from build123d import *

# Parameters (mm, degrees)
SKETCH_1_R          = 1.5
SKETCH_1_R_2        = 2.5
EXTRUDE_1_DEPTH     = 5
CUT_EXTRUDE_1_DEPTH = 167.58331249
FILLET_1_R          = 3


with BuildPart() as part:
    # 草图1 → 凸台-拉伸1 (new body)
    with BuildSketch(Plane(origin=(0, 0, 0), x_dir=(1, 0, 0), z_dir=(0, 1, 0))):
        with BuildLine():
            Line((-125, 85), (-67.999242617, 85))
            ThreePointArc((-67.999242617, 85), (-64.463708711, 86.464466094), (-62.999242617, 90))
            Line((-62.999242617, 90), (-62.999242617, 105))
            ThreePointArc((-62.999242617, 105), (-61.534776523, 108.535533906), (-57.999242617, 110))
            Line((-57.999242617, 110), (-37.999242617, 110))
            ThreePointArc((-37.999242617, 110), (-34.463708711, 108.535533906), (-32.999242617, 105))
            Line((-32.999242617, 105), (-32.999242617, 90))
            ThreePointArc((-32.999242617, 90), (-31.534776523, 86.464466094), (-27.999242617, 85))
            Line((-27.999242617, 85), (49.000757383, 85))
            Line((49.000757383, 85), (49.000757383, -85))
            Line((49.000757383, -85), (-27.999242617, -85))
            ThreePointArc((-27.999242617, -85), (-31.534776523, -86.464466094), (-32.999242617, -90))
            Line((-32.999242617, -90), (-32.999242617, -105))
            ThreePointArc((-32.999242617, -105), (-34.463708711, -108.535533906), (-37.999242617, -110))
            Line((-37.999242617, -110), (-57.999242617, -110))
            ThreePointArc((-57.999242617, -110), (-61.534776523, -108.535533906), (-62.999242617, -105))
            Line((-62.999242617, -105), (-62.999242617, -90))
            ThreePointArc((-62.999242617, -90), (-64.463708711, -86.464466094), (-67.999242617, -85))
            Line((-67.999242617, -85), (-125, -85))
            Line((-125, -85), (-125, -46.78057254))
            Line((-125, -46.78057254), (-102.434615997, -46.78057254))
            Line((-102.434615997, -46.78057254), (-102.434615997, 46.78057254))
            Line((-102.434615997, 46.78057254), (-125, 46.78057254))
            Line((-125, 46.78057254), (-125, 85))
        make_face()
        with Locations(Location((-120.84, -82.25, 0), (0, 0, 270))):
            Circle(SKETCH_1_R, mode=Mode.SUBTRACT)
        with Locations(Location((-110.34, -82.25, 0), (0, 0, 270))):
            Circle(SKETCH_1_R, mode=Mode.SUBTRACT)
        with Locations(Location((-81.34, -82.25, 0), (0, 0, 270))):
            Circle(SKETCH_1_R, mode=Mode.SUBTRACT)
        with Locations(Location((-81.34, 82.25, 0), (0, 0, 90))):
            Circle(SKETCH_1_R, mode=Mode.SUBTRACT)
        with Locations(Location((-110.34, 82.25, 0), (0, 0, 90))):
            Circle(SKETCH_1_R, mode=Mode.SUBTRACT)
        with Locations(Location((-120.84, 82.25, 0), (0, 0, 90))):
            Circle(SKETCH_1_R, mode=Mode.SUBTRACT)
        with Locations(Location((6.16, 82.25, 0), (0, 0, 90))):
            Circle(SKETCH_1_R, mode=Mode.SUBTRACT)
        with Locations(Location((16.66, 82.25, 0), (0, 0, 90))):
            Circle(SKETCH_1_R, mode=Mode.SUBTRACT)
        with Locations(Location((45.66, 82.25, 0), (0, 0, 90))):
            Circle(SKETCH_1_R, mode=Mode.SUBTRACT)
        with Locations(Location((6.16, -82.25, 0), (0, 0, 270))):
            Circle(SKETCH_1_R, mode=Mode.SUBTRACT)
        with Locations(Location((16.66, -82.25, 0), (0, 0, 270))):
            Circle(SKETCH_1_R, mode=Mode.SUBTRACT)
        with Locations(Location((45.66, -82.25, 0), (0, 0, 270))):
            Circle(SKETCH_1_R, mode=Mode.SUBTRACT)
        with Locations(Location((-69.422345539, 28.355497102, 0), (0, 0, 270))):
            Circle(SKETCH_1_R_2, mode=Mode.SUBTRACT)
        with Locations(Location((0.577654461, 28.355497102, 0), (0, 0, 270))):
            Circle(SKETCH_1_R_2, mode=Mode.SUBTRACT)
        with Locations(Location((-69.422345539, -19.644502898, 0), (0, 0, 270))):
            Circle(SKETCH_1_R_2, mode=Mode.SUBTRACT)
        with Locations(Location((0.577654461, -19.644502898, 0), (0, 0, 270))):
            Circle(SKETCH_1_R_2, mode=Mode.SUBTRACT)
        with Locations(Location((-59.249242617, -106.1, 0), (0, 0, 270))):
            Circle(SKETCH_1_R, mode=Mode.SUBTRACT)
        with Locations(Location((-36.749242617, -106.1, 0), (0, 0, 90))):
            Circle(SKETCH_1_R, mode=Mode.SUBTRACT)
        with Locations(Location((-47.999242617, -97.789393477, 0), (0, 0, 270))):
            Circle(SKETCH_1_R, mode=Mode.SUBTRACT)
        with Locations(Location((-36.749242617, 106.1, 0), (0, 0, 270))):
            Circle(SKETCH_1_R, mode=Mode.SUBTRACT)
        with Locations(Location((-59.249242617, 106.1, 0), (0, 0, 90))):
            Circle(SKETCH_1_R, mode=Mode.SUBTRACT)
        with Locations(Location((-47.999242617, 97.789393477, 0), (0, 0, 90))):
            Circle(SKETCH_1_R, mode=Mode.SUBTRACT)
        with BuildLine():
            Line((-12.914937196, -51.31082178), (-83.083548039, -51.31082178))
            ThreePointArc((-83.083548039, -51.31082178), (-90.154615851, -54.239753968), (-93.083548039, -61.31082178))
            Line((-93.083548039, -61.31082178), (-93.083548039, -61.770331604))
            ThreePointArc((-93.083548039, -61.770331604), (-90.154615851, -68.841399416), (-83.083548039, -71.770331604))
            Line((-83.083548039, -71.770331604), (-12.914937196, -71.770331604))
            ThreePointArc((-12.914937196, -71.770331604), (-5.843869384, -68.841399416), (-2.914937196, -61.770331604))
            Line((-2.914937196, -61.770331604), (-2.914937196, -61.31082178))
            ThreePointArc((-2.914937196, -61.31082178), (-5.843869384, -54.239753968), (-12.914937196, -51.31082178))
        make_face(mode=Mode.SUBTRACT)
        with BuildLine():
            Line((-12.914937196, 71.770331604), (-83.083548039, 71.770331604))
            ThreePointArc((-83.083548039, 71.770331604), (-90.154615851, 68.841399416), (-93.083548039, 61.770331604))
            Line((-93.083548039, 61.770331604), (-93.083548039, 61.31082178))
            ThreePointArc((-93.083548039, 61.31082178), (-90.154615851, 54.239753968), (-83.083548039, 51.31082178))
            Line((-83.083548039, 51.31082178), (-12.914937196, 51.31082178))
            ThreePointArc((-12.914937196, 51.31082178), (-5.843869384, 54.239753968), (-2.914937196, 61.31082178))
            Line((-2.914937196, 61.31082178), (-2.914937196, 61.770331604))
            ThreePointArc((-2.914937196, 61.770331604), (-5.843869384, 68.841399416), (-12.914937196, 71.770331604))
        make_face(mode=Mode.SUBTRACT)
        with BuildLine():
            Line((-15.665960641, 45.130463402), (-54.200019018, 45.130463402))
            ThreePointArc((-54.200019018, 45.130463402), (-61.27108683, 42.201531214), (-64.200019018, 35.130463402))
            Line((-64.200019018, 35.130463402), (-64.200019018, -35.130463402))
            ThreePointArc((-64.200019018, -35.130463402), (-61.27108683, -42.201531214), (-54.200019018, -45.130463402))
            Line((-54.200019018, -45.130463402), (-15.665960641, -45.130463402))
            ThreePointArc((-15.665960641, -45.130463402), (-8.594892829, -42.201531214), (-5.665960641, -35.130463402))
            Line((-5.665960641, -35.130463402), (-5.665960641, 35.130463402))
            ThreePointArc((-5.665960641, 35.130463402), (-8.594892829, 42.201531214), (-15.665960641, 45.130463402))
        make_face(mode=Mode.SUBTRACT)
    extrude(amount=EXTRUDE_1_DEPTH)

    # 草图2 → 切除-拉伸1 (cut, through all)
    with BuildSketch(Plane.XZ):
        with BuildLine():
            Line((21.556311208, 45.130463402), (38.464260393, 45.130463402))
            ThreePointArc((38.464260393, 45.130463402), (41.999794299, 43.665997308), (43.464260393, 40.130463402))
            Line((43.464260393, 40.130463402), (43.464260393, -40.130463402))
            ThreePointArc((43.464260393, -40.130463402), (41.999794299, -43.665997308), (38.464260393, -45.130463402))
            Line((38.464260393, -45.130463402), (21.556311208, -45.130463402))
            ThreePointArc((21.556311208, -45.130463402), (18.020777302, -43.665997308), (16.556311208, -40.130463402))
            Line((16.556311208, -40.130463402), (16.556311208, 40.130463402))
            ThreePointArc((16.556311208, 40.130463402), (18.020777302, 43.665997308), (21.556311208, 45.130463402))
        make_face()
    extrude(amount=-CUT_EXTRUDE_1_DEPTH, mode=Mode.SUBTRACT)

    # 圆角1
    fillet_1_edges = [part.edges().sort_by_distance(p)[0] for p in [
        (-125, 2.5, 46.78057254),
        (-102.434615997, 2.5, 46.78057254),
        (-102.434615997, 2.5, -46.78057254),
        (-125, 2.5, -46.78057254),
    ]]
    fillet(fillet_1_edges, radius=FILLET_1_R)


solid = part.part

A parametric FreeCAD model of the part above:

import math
import FreeCAD as App
import Part
import Sketcher

V = App.Vector
Q = App.Units.Quantity


def edges_at(feature, points):
    """Names of the edges that pass closest to the given points."""
    edges = feature.Shape.Edges
    near = lambda p: min(range(len(edges)), key=lambda i: edges[i].distToShape(Part.Vertex(*p))[0])
    return sorted({f"Edge{near(p) + 1}" for p in points})

doc = App.newDocument("Part")
body = doc.addObject("PartDesign::Body", "Body")

# Sketch on XZ plane
sketch1 = body.newObject("Sketcher::SketchObject", "Sketch")
sketch1.AttachmentSupport = (doc.getObject("XZ_Plane"), [""])
sketch1.MapMode = "FlatFace"
sketch1.addGeometry([
    Part.LineSegment(V(-68, -85, 0), V(-125, -85, 0)),  # 0
    Part.LineSegment(V(-125, -85, 0), V(-125, -46.78, 0)),  # 1
    Part.LineSegment(V(-125, -46.78, 0), V(-102.43, -46.78, 0)),  # 2
    Part.LineSegment(V(-102.43, -46.78, 0), V(-102.43, 46.78, 0)),  # 3
    Part.LineSegment(V(-102.43, 46.78, 0), V(-125, 46.78, 0)),  # 4
    Part.LineSegment(V(-125, 46.78, 0), V(-125, 85, 0)),  # 5
    Part.LineSegment(V(-125, 85, 0), V(-68, 85, 0)),  # 6
    Part.ArcOfCircle(Part.Circle(V(-68, 90, 0), V(0, 0, 1), 5), math.radians(-90), math.radians(0)),  # 7
    Part.LineSegment(V(-63, 90, 0), V(-63, 105, 0)),  # 8
    Part.ArcOfCircle(Part.Circle(V(-58, 105, 0), V(0, 0, 1), 5), math.radians(90), math.radians(180)),  # 9
    Part.LineSegment(V(-58, 110, 0), V(-38, 110, 0)),  # 10
    Part.ArcOfCircle(Part.Circle(V(-38, 105, 0), V(0, 0, 1), 5), math.radians(0), math.radians(90)),  # 11
    Part.LineSegment(V(-33, 105, 0), V(-33, 90, 0)),  # 12
    Part.ArcOfCircle(Part.Circle(V(-28, 90, 0), V(0, 0, 1), 5), math.radians(180), math.radians(270)),  # 13
    Part.LineSegment(V(-28, 85, 0), V(49, 85, 0)),  # 14
    Part.LineSegment(V(49, 85, 0), V(49, -85, 0)),  # 15
    Part.LineSegment(V(49, -85, 0), V(-28, -85, 0)),  # 16
    Part.ArcOfCircle(Part.Circle(V(-28, -90, 0), V(0, 0, 1), 5), math.radians(90), math.radians(180)),  # 17
    Part.LineSegment(V(-33, -90, 0), V(-33, -105, 0)),  # 18
    Part.ArcOfCircle(Part.Circle(V(-38, -105, 0), V(0, 0, 1), 5), math.radians(-90), math.radians(0)),  # 19
    Part.LineSegment(V(-38, -110, 0), V(-58, -110, 0)),  # 20
    Part.ArcOfCircle(Part.Circle(V(-58, -105, 0), V(0, 0, 1), 5), math.radians(180), math.radians(270)),  # 21
    Part.LineSegment(V(-63, -105, 0), V(-63, -90, 0)),  # 22
    Part.ArcOfCircle(Part.Circle(V(-68, -90, 0), V(0, 0, 1), 5), math.radians(0), math.radians(90)),  # 23
    Part.Circle(V(45.66, 82.25, 0), V(0, 0, 1), 1.5),  # 24
    Part.Circle(V(16.66, 82.25, 0), V(0, 0, 1), 1.5),  # 25
    Part.Circle(V(6.16, 82.25, 0), V(0, 0, 1), 1.5),  # 26
    Part.Circle(V(-36.75, 106.1, 0), V(0, 0, 1), 1.5),  # 27
    Part.Circle(V(0.58, 19.64, 0), V(0, 0, 1), 2.5),  # 28
    Part.Circle(V(-48, 97.79, 0), V(0, 0, 1), 1.5),  # 29
    Part.Circle(V(-59.25, 106.1, 0), V(0, 0, 1), 1.5),  # 30
    Part.ArcOfCircle(Part.Circle(V(-12.91, 61.31, 0), V(0, 0, 1), 10), math.radians(-90), math.radians(0)),  # 31
    Part.LineSegment(V(-2.91, 61.31, 0), V(-2.91, 61.77, 0)),  # 32
    Part.ArcOfCircle(Part.Circle(V(-12.91, 61.77, 0), V(0, 0, 1), 10), math.radians(0), math.radians(90)),  # 33
    Part.LineSegment(V(-12.91, 71.77, 0), V(-83.08, 71.77, 0)),  # 34
    Part.ArcOfCircle(Part.Circle(V(-83.08, 61.77, 0), V(0, 0, 1), 10), math.radians(90), math.radians(180)),  # 35
    Part.LineSegment(V(-93.08, 61.77, 0), V(-93.08, 61.31, 0)),  # 36
    Part.ArcOfCircle(Part.Circle(V(-83.08, 61.31, 0), V(0, 0, 1), 10), math.radians(180), math.radians(270)),  # 37
    Part.LineSegment(V(-83.08, 51.31, 0), V(-12.91, 51.31, 0)),  # 38
    Part.Circle(V(-81.34, 82.25, 0), V(0, 0, 1), 1.5),  # 39
    Part.Circle(V(-110.34, 82.25, 0), V(0, 0, 1), 1.5),  # 40
    Part.Circle(V(-120.84, 82.25, 0), V(0, 0, 1), 1.5),  # 41
    Part.Circle(V(-69.42, 19.64, 0), V(0, 0, 1), 2.5),  # 42
    Part.ArcOfCircle(Part.Circle(V(-15.67, -35.13, 0), V(0, 0, 1), 10), math.radians(-90), math.radians(0)),  # 43
    Part.LineSegment(V(-5.67, -35.13, 0), V(-5.67, 35.13, 0)),  # 44
    Part.ArcOfCircle(Part.Circle(V(-15.67, 35.13, 0), V(0, 0, 1), 10), math.radians(0), math.radians(90)),  # 45
    Part.LineSegment(V(-15.67, 45.13, 0), V(-54.2, 45.13, 0)),  # 46
    Part.ArcOfCircle(Part.Circle(V(-54.2, 35.13, 0), V(0, 0, 1), 10), math.radians(90), math.radians(180)),  # 47
    Part.LineSegment(V(-64.2, 35.13, 0), V(-64.2, -35.13, 0)),  # 48
    Part.ArcOfCircle(Part.Circle(V(-54.2, -35.13, 0), V(0, 0, 1), 10), math.radians(180), math.radians(270)),  # 49
    Part.LineSegment(V(-54.2, -45.13, 0), V(-15.67, -45.13, 0)),  # 50
    Part.Circle(V(0.58, -28.36, 0), V(0, 0, 1), 2.5),  # 51
    Part.Circle(V(45.66, -82.25, 0), V(0, 0, 1), 1.5),  # 52
    Part.Circle(V(16.66, -82.25, 0), V(0, 0, 1), 1.5),  # 53
    Part.Circle(V(6.16, -82.25, 0), V(0, 0, 1), 1.5),  # 54
    Part.Circle(V(-36.75, -106.1, 0), V(0, 0, 1), 1.5),  # 55
    Part.Circle(V(-69.42, -28.36, 0), V(0, 0, 1), 2.5),  # 56
    Part.ArcOfCircle(Part.Circle(V(-12.91, -61.77, 0), V(0, 0, 1), 10), math.radians(-90), math.radians(0)),  # 57
    Part.LineSegment(V(-2.91, -61.77, 0), V(-2.91, -61.31, 0)),  # 58
    Part.ArcOfCircle(Part.Circle(V(-12.91, -61.31, 0), V(0, 0, 1), 10), math.radians(0), math.radians(90)),  # 59
    Part.LineSegment(V(-12.91, -51.31, 0), V(-83.08, -51.31, 0)),  # 60
    Part.ArcOfCircle(Part.Circle(V(-83.08, -61.31, 0), V(0, 0, 1), 10), math.radians(90), math.radians(180)),  # 61
    Part.LineSegment(V(-93.08, -61.31, 0), V(-93.08, -61.77, 0)),  # 62
    Part.ArcOfCircle(Part.Circle(V(-83.08, -61.77, 0), V(0, 0, 1), 10), math.radians(180), math.radians(270)),  # 63
    Part.LineSegment(V(-83.08, -71.77, 0), V(-12.91, -71.77, 0)),  # 64
    Part.Circle(V(-48, -97.79, 0), V(0, 0, 1), 1.5),  # 65
    Part.Circle(V(-59.25, -106.1, 0), V(0, 0, 1), 1.5),  # 66
    Part.Circle(V(-81.34, -82.25, 0), V(0, 0, 1), 1.5),  # 67
    Part.Circle(V(-110.34, -82.25, 0), V(0, 0, 1), 1.5),  # 68
    Part.Circle(V(-120.84, -82.25, 0), V(0, 0, 1), 1.5),  # 69
], False)
sketch1.addConstraint([
    Sketcher.Constraint("Coincident", 0, 2, 1, 1),
    Sketcher.Constraint("Coincident", 1, 2, 2, 1),
    Sketcher.Constraint("Coincident", 2, 2, 3, 1),
    Sketcher.Constraint("Coincident", 3, 2, 4, 1),
    Sketcher.Constraint("Coincident", 4, 2, 5, 1),
    Sketcher.Constraint("Coincident", 5, 2, 6, 1),
    Sketcher.Constraint("Tangent", 6, 2, 7, 1),
    Sketcher.Constraint("Tangent", 7, 2, 8, 1),
    Sketcher.Constraint("Tangent", 8, 2, 9, 2),
    Sketcher.Constraint("Tangent", 9, 1, 10, 1),
    Sketcher.Constraint("Tangent", 10, 2, 11, 2),
    Sketcher.Constraint("Tangent", 11, 1, 12, 1),
    Sketcher.Constraint("Tangent", 12, 2, 13, 1),
    Sketcher.Constraint("Tangent", 13, 2, 14, 1),
    Sketcher.Constraint("Coincident", 14, 2, 15, 1),
    Sketcher.Constraint("Coincident", 15, 2, 16, 1),
    Sketcher.Constraint("Tangent", 16, 2, 17, 1),
    Sketcher.Constraint("Tangent", 17, 2, 18, 1),
    Sketcher.Constraint("Tangent", 18, 2, 19, 2),
    Sketcher.Constraint("Tangent", 19, 1, 20, 1),
    Sketcher.Constraint("Tangent", 20, 2, 21, 2),
    Sketcher.Constraint("Tangent", 21, 1, 22, 1),
    Sketcher.Constraint("Tangent", 22, 2, 23, 1),
    Sketcher.Constraint("Tangent", 23, 2, 0, 1),
    Sketcher.Constraint("Tangent", 31, 2, 32, 1),
    Sketcher.Constraint("Tangent", 32, 2, 33, 1),
    Sketcher.Constraint("Tangent", 33, 2, 34, 1),
    Sketcher.Constraint("Tangent", 34, 2, 35, 1),
    Sketcher.Constraint("Tangent", 35, 2, 36, 1),
    Sketcher.Constraint("Tangent", 36, 2, 37, 1),
    Sketcher.Constraint("Tangent", 37, 2, 38, 1),
    Sketcher.Constraint("Tangent", 38, 2, 31, 1),
    Sketcher.Constraint("Tangent", 43, 2, 44, 1),
    Sketcher.Constraint("Tangent", 44, 2, 45, 1),
    Sketcher.Constraint("Tangent", 45, 2, 46, 1),
    Sketcher.Constraint("Tangent", 46, 2, 47, 1),
    Sketcher.Constraint("Tangent", 47, 2, 48, 1),
    Sketcher.Constraint("Tangent", 48, 2, 49, 1),
    Sketcher.Constraint("Tangent", 49, 2, 50, 1),
    Sketcher.Constraint("Tangent", 50, 2, 43, 1),
    Sketcher.Constraint("Tangent", 57, 2, 58, 1),
    Sketcher.Constraint("Tangent", 58, 2, 59, 1),
    Sketcher.Constraint("Tangent", 59, 2, 60, 1),
    Sketcher.Constraint("Tangent", 60, 2, 61, 1),
    Sketcher.Constraint("Tangent", 61, 2, 62, 1),
    Sketcher.Constraint("Tangent", 62, 2, 63, 1),
    Sketcher.Constraint("Tangent", 63, 2, 64, 1),
    Sketcher.Constraint("Tangent", 64, 2, 57, 1),
    Sketcher.Constraint("Horizontal", 0),
    Sketcher.Constraint("Vertical", 1),
    Sketcher.Constraint("Horizontal", 2),
    Sketcher.Constraint("Vertical", 3),
    Sketcher.Constraint("Horizontal", 4),
    Sketcher.Constraint("Vertical", 5),
    Sketcher.Constraint("Horizontal", 6),
    Sketcher.Constraint("Vertical", 8),
    Sketcher.Constraint("Horizontal", 10),
    Sketcher.Constraint("Vertical", 12),
    Sketcher.Constraint("Horizontal", 14),
    Sketcher.Constraint("Vertical", 15),
    Sketcher.Constraint("Horizontal", 16),
    Sketcher.Constraint("Vertical", 18),
    Sketcher.Constraint("Horizontal", 20),
    Sketcher.Constraint("Vertical", 22),
    Sketcher.Constraint("Vertical", 32),
    Sketcher.Constraint("Horizontal", 34),
    Sketcher.Constraint("Vertical", 36),
    Sketcher.Constraint("Horizontal", 38),
    Sketcher.Constraint("Vertical", 44),
    Sketcher.Constraint("Horizontal", 46),
    Sketcher.Constraint("Vertical", 48),
    Sketcher.Constraint("Horizontal", 50),
    Sketcher.Constraint("Vertical", 58),
    Sketcher.Constraint("Horizontal", 60),
    Sketcher.Constraint("Vertical", 62),
    Sketcher.Constraint("Horizontal", 64),
    Sketcher.Constraint("Equal", 7, 9),
    Sketcher.Constraint("Equal", 9, 11),
    Sketcher.Constraint("Equal", 11, 13),
    Sketcher.Constraint("Equal", 13, 17),
    Sketcher.Constraint("Equal", 17, 19),
    Sketcher.Constraint("Equal", 19, 21),
    Sketcher.Constraint("Equal", 21, 23),
    Sketcher.Constraint("Equal", 24, 25),
    Sketcher.Constraint("Equal", 25, 26),
    Sketcher.Constraint("Equal", 26, 27),
    Sketcher.Constraint("Equal", 27, 29),
    Sketcher.Constraint("Equal", 29, 30),
    Sketcher.Constraint("Equal", 31, 33),
    Sketcher.Constraint("Equal", 33, 35),
    Sketcher.Constraint("Equal", 35, 37),
    Sketcher.Constraint("Equal", 30, 39),
    Sketcher.Constraint("Equal", 39, 40),
    Sketcher.Constraint("Equal", 40, 41),
    Sketcher.Constraint("Equal", 28, 42),
    Sketcher.Constraint("Equal", 37, 43),
    Sketcher.Constraint("Equal", 43, 45),
    Sketcher.Constraint("Equal", 45, 47),
    Sketcher.Constraint("Equal", 47, 49),
    Sketcher.Constraint("Equal", 42, 51),
    Sketcher.Constraint("Equal", 41, 52),
    Sketcher.Constraint("Equal", 52, 53),
    Sketcher.Constraint("Equal", 53, 54),
    Sketcher.Constraint("Equal", 54, 55),
    Sketcher.Constraint("Equal", 51, 56),
    Sketcher.Constraint("Equal", 49, 57),
    Sketcher.Constraint("Equal", 57, 59),
    Sketcher.Constraint("Equal", 59, 61),
    Sketcher.Constraint("Equal", 61, 63),
    Sketcher.Constraint("Equal", 55, 65),
    Sketcher.Constraint("Equal", 65, 66),
    Sketcher.Constraint("Equal", 66, 67),
    Sketcher.Constraint("Equal", 67, 68),
    Sketcher.Constraint("Equal", 68, 69),
    Sketcher.Constraint("Symmetric", 13, 3, 17, 3, -1),
    Sketcher.Constraint("Symmetric", 9, 3, 21, 3, -1),
    Sketcher.Constraint("Symmetric", 24, 3, 52, 3, -1),
    Sketcher.Constraint("Symmetric", 25, 3, 53, 3, -1),
    Sketcher.Constraint("Symmetric", 26, 3, 54, 3, -1),
    Sketcher.Constraint("Symmetric", 27, 3, 55, 3, -1),
    Sketcher.Constraint("Symmetric", 33, 3, 57, 3, -1),
    Sketcher.Constraint("Symmetric", 37, 3, 61, 3, -1),
    Sketcher.Constraint("Symmetric", 29, 3, 65, 3, -1),
    Sketcher.Constraint("Symmetric", 30, 3, 66, 3, -1),
    Sketcher.Constraint("Symmetric", 39, 3, 67, 3, -1),
    Sketcher.Constraint("Symmetric", 40, 3, 68, 3, -1),
    Sketcher.Constraint("Symmetric", 41, 3, 69, 3, -1),
    Sketcher.Constraint("Symmetric", 1, 2, 4, 2, -1),
    Sketcher.Constraint("Horizontal", 7, 3, 13, 3),
    Sketcher.Constraint("Horizontal", 17, 3, 23, 3),
    Sketcher.Constraint("Horizontal", 24, 3, 25, 3),
    Sketcher.Constraint("Horizontal", 25, 3, 26, 3),
    Sketcher.Constraint("Horizontal", 27, 3, 30, 3),
    Sketcher.Constraint("Horizontal", 26, 3, 39, 3),
    Sketcher.Constraint("Horizontal", 39, 3, 40, 3),
    Sketcher.Constraint("Horizontal", 40, 3, 41, 3),
    Sketcher.Constraint("Horizontal", 28, 3, 42, 3),
    Sketcher.Constraint("Horizontal", 51, 3, 56, 3),
    Sketcher.Constraint("Vertical", 28, 3, 51, 3),
    Sketcher.Constraint("Vertical", 42, 3, 56, 3),
    Sketcher.Constraint("Diameter", 24, Q("3 mm")),
    Sketcher.Constraint("Diameter", 28, Q("5 mm")),
    Sketcher.Constraint("Radius", 7, Q("5 mm")),
    Sketcher.Constraint("Radius", 31, Q("10 mm")),
    Sketcher.Constraint("DistanceX", 10, 1, 10, 2, Q("20 mm")),
    Sketcher.Constraint("DistanceX", 14, 1, 14, 2, Q("77 mm")),
    Sketcher.Constraint("DistanceY", 8, 1, 8, 2, Q("15 mm")),
    Sketcher.Constraint("DistanceY", 15, 2, 15, 1, Q("170 mm")),
    Sketcher.Constraint("DistanceX", 0, 2, -1, 1, Q("125 mm")),
    Sketcher.Constraint("DistanceY", -1, 1, 27, 3, Q("106.1 mm")),
    Sketcher.Constraint("DistanceX", -1, 1, 24, 3, Q("45.66 mm")),
    Sketcher.Constraint("DistanceY", -1, 1, 24, 3, Q("82.25 mm")),
    Sketcher.Constraint("DistanceX", -1, 1, 25, 3, Q("16.66 mm")),
    Sketcher.Constraint("DistanceX", -1, 1, 26, 3, Q("6.16 mm")),
    Sketcher.Constraint("DistanceX", 39, 3, -1, 1, Q("81.34 mm")),
    Sketcher.Constraint("DistanceX", 40, 3, -1, 1, Q("110.34 mm")),
    Sketcher.Constraint("DistanceX", 41, 3, -1, 1, Q("120.84 mm")),
    Sketcher.Constraint("DistanceX", 34, 2, 34, 1, Q("70.168611 mm")),
    Sketcher.Constraint("DistanceX", 46, 2, 46, 1, Q("38.534058 mm")),
    Sketcher.Constraint("DistanceY", 32, 1, 32, 2, Q("0.45951 mm")),
    Sketcher.Constraint("DistanceX", 0, 2, 0, 1, Q("57.000757 mm")),
    Sketcher.Constraint("DistanceX", 2, 1, 2, 2, Q("22.565384 mm")),
    Sketcher.Constraint("DistanceY", 1, 1, 1, 2, Q("38.219427 mm")),
    Sketcher.Constraint("DistanceY", 44, 1, 44, 2, Q("70.260927 mm")),
    Sketcher.Constraint("DistanceY", -1, 1, 31, 3, Q("61.310822 mm")),
    Sketcher.Constraint("DistanceX", 35, 3, -1, 1, Q("83.083548 mm")),
    Sketcher.Constraint("DistanceX", 43, 3, -1, 1, Q("15.665961 mm")),
    Sketcher.Constraint("DistanceX", 27, 3, -1, 1, Q("36.749243 mm")),
    Sketcher.Constraint("DistanceX", -1, 1, 28, 3, Q("0.577654 mm")),
    Sketcher.Constraint("DistanceY", -1, 1, 28, 3, Q("19.644503 mm")),
    Sketcher.Constraint("DistanceX", 29, 3, -1, 1, Q("47.999243 mm")),
    Sketcher.Constraint("DistanceY", -1, 1, 29, 3, Q("97.789393 mm")),
    Sketcher.Constraint("DistanceX", 30, 3, -1, 1, Q("59.249243 mm")),
    Sketcher.Constraint("DistanceX", 42, 3, -1, 1, Q("69.422346 mm")),
    Sketcher.Constraint("DistanceY", 43, 3, -1, 1, Q("35.130463 mm")),
    Sketcher.Constraint("DistanceY", 51, 3, -1, 1, Q("28.355497 mm")),
])
pad1 = body.newObject("PartDesign::Pad", "Pad")
pad1.Profile = sketch1
pad1.Length = 5
pad1.Reversed = True

# Sketch on XZ plane
sketch2 = body.newObject("Sketcher::SketchObject", "Sketch001")
sketch2.AttachmentSupport = (doc.getObject("XZ_Plane"), [""])
sketch2.MapMode = "FlatFace"
sketch2.addGeometry([
    Part.LineSegment(V(38, 45, 0), V(22, 45, 0)),  # 0
    Part.ArcOfCircle(Part.Circle(V(22, 40, 0), V(0, 0, 1), 5), math.radians(90), math.radians(180)),  # 1
    Part.LineSegment(V(17, 40, 0), V(17, -40, 0)),  # 2
    Part.ArcOfCircle(Part.Circle(V(22, -40, 0), V(0, 0, 1), 5), math.radians(180), math.radians(270)),  # 3
    Part.LineSegment(V(22, -45, 0), V(38, -45, 0)),  # 4
    Part.ArcOfCircle(Part.Circle(V(38, -40, 0), V(0, 0, 1), 5), math.radians(-90), math.radians(0)),  # 5
    Part.LineSegment(V(43, -40, 0), V(43, 40, 0)),  # 6
    Part.ArcOfCircle(Part.Circle(V(38, 40, 0), V(0, 0, 1), 5), math.radians(0), math.radians(90)),  # 7
], False)
sketch2.addConstraint([
    Sketcher.Constraint("Tangent", 0, 2, 1, 1),
    Sketcher.Constraint("Tangent", 1, 2, 2, 1),
    Sketcher.Constraint("Tangent", 2, 2, 3, 1),
    Sketcher.Constraint("Tangent", 3, 2, 4, 1),
    Sketcher.Constraint("Tangent", 4, 2, 5, 1),
    Sketcher.Constraint("Tangent", 5, 2, 6, 1),
    Sketcher.Constraint("Tangent", 6, 2, 7, 1),
    Sketcher.Constraint("Tangent", 7, 2, 0, 1),
    Sketcher.Constraint("Horizontal", 0),
    Sketcher.Constraint("Vertical", 2),
    Sketcher.Constraint("Horizontal", 4),
    Sketcher.Constraint("Vertical", 6),
    Sketcher.Constraint("Equal", 1, 3),
    Sketcher.Constraint("Equal", 3, 5),
    Sketcher.Constraint("Equal", 5, 7),
    Sketcher.Constraint("Radius", 1, Q("5 mm")),
    Sketcher.Constraint("DistanceX", 0, 2, 0, 1, Q("16.907949 mm")),
    Sketcher.Constraint("DistanceY", 2, 2, 2, 1, Q("80.260927 mm")),
    Sketcher.Constraint("DistanceX", -1, 1, 1, 3, Q("21.556311 mm")),
    Sketcher.Constraint("DistanceY", -1, 1, 1, 3, Q("40.130463 mm")),
])
pocket1 = body.newObject("PartDesign::Pocket", "Pocket")
pocket1.Profile = sketch2
pocket1.Type = "ThroughAll"
doc.recompute()

fillet = body.newObject("PartDesign::Fillet", "Fillet")
fillet.Base = (pocket1, edges_at(pocket1, [
    (-125, 2.5, 46.781),
    (-102.435, 2.5, 46.781),
    (-102.435, 2.5, -46.781),
    (-125, 2.5, -46.781),
]))
fillet.Radius = 3

doc.recompute()
